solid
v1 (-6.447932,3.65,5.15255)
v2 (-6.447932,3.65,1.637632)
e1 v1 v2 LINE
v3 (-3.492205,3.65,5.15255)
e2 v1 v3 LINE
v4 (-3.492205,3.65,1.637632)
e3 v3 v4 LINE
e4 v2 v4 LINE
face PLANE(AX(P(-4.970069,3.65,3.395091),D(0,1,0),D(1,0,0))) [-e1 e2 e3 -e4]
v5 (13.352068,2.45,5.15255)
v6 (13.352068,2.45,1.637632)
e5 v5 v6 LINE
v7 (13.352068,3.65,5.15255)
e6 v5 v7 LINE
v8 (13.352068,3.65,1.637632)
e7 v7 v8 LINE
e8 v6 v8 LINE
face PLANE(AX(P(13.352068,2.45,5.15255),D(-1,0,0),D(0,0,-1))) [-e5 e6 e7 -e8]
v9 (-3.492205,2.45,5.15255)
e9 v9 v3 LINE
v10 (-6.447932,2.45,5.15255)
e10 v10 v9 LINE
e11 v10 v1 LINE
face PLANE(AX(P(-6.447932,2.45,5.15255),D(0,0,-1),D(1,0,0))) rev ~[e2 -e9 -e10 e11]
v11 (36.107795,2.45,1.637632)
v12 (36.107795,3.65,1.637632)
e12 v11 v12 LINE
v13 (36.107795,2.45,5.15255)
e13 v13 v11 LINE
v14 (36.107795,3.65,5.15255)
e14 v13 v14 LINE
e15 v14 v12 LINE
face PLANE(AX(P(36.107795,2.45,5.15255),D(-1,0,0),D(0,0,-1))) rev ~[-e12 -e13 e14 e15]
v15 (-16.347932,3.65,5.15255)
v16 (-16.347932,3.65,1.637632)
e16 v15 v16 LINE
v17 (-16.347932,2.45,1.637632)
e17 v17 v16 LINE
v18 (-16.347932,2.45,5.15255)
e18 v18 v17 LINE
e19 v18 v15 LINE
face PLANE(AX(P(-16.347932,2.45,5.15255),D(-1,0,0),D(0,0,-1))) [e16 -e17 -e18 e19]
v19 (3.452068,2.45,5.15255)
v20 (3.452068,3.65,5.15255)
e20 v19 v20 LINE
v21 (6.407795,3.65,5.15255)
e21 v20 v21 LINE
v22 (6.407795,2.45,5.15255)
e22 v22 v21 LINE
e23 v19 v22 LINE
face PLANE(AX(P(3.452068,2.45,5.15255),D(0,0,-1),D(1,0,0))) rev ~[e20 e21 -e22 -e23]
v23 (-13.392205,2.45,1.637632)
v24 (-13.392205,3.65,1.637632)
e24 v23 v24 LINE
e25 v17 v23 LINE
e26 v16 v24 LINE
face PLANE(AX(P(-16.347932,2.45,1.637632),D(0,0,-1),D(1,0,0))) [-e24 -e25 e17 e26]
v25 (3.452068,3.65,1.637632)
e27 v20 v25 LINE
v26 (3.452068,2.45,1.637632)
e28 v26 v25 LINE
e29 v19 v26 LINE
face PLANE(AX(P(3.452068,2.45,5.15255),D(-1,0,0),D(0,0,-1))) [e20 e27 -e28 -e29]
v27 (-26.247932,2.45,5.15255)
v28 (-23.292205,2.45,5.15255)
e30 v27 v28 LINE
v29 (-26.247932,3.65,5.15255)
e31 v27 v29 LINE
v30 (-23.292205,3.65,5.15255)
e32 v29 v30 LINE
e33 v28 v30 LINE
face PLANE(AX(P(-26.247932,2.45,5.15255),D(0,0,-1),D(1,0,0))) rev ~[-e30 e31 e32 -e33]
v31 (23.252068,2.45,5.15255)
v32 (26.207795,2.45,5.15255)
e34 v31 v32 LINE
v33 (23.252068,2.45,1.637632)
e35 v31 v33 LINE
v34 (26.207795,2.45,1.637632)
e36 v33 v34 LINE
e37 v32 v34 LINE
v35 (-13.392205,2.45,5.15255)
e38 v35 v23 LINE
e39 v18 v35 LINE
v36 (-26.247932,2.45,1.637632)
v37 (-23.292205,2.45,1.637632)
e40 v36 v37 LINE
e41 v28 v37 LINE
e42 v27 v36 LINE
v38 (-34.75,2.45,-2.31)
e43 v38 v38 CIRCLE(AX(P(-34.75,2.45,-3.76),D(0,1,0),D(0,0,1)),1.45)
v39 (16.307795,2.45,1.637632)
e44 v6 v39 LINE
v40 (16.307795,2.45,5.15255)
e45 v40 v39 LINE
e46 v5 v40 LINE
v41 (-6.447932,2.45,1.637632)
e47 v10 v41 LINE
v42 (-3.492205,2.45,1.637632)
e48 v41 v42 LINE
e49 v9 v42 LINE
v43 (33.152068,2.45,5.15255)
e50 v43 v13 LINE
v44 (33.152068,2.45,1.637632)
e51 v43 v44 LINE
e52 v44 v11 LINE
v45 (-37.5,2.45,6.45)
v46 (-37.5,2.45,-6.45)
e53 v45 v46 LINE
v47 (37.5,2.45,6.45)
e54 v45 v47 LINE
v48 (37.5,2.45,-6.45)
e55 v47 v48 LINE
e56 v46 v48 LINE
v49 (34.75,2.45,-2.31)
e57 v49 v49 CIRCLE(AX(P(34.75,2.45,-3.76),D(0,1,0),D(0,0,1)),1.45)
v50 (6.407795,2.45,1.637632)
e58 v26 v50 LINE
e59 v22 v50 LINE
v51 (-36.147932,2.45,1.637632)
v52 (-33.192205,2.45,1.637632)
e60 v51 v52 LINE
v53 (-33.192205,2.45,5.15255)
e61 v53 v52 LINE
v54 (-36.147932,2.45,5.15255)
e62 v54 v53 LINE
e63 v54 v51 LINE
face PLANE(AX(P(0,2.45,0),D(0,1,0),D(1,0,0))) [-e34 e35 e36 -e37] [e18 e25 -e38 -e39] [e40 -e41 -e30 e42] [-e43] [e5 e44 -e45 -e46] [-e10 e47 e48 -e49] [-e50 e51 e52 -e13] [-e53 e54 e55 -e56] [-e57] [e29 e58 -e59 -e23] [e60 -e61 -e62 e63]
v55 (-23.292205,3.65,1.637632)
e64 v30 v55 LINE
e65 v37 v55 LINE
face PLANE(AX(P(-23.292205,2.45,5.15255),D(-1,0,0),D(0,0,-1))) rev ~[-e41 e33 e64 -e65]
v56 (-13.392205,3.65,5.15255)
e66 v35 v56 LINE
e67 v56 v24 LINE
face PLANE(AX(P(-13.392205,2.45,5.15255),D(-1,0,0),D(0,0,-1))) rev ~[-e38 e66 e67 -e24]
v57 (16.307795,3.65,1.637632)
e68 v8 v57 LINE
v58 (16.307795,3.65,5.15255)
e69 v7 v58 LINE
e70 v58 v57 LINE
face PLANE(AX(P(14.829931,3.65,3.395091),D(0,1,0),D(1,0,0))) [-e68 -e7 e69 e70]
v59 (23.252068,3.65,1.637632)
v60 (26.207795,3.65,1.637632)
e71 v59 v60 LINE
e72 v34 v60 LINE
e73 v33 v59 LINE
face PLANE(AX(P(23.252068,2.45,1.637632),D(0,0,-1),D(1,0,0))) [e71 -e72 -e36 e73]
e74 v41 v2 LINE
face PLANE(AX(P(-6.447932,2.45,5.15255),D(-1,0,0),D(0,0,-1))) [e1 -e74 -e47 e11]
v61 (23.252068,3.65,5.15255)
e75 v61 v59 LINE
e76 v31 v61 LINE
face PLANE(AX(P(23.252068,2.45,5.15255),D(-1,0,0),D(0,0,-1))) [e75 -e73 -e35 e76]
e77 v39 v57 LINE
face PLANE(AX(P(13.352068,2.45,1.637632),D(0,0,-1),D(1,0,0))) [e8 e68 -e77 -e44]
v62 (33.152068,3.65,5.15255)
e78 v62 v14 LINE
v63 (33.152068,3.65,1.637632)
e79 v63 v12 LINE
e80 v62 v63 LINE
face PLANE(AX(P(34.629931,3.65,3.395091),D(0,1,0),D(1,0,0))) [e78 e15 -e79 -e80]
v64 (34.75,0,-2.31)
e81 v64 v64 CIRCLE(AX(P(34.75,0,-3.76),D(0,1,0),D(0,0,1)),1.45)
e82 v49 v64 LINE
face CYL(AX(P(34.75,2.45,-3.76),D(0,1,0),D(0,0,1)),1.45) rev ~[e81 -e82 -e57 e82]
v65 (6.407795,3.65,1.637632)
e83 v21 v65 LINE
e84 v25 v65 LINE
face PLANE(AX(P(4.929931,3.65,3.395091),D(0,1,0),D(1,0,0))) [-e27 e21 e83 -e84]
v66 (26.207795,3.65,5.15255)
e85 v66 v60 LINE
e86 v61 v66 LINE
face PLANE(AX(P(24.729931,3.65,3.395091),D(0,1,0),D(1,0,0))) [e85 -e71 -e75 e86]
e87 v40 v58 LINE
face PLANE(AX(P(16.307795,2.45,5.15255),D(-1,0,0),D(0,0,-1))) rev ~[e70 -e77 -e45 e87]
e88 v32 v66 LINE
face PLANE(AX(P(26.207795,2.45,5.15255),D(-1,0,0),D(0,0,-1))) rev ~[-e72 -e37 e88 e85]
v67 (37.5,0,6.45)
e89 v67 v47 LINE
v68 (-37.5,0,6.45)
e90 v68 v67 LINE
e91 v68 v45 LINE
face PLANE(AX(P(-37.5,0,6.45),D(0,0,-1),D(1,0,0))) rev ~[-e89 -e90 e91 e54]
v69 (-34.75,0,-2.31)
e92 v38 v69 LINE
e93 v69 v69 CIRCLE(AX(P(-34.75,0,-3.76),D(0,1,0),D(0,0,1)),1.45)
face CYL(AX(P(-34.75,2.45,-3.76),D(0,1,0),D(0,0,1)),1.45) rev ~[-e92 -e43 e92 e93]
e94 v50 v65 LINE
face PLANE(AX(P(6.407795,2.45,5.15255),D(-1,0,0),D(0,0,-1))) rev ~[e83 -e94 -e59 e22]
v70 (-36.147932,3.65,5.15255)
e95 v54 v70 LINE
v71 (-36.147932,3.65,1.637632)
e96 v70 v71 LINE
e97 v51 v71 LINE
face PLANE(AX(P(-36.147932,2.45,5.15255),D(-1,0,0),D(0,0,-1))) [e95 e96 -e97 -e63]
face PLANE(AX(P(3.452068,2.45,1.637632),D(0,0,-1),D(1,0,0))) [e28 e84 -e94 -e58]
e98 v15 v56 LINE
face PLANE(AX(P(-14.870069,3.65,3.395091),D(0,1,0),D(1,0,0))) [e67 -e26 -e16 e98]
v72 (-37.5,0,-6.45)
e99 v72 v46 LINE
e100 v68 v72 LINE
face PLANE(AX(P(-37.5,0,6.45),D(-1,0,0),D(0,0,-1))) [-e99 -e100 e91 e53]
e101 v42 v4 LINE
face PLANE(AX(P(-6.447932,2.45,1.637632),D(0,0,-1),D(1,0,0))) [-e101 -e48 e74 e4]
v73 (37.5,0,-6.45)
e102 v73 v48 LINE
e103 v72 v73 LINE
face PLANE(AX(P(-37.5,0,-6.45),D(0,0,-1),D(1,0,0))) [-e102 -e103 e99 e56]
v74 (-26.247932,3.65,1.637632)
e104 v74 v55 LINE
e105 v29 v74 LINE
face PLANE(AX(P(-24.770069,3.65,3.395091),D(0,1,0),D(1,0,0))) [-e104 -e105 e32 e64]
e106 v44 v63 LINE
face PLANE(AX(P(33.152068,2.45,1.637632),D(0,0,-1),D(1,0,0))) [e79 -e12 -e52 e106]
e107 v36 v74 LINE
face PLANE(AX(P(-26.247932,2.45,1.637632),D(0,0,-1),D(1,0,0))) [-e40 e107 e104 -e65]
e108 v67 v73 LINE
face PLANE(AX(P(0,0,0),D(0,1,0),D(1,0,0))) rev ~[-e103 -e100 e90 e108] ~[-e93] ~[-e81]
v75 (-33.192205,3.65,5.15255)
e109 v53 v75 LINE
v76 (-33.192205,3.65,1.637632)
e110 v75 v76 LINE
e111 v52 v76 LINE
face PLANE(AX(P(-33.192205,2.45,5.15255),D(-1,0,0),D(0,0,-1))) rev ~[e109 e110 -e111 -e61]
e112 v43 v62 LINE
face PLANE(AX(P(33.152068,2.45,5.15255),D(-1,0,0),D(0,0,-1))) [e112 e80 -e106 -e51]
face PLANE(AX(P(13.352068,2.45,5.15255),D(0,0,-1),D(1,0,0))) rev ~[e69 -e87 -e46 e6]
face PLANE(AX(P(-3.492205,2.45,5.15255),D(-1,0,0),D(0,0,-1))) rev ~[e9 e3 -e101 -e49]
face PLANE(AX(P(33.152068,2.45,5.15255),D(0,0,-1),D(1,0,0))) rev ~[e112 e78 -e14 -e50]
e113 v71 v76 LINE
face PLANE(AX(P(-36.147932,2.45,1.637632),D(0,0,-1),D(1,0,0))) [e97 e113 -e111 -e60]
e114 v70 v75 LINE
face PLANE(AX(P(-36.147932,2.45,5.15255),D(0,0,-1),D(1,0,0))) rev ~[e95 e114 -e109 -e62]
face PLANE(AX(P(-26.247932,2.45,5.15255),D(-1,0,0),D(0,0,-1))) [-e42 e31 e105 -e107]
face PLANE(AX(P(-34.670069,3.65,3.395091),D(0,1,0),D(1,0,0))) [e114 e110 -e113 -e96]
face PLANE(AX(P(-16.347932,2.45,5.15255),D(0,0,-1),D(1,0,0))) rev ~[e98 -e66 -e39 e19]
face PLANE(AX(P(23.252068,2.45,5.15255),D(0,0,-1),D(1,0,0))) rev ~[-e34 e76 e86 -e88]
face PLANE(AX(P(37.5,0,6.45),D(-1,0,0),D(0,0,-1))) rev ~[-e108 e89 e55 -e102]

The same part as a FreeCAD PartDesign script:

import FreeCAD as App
import Part
import Sketcher
from FreeCAD import Vector

doc = App.newDocument("Part")
body = doc.addObject("PartDesign::Body", "Body")

sketch1 = body.newObject("Sketcher::SketchObject", "Sketch")
sketch1.AttachmentSupport = (doc.getObject("XZ_Plane"), [""])
sketch1.MapMode = "FlatFace"
sketch1.addGeometry(Part.LineSegment(Vector(-38, -6, 0), Vector(-38, 6, 0)), False)
sketch1.addGeometry(Part.LineSegment(Vector(-38, 6, 0), Vector(38, 6, 0)), False)
sketch1.addGeometry(Part.LineSegment(Vector(38, 6, 0), Vector(38, -6, 0)), False)
sketch1.addGeometry(Part.LineSegment(Vector(38, -6, 0), Vector(-38, -6, 0)), False)
sketch1.addConstraint(Sketcher.Constraint("Coincident", 0, 2, 1, 1))
sketch1.addConstraint(Sketcher.Constraint("Coincident", 1, 2, 2, 1))
sketch1.addConstraint(Sketcher.Constraint("Coincident", 2, 2, 3, 1))
sketch1.addConstraint(Sketcher.Constraint("Coincident", 3, 2, 0, 1))
sketch1.addConstraint(Sketcher.Constraint("Vertical", 0))
sketch1.addConstraint(Sketcher.Constraint("Horizontal", 1))
sketch1.addConstraint(Sketcher.Constraint("Vertical", 2))
sketch1.addConstraint(Sketcher.Constraint("Horizontal", 3))
sketch1.addConstraint(Sketcher.Constraint("Symmetric", 0, 2, 2, 2, -1, 1))
sketch1.addConstraint(Sketcher.Constraint("DistanceX", 1, 1, 1, 2, 75.0))
sketch1.addConstraint(Sketcher.Constraint("DistanceY", 0, 1, 0, 2, 12.9))
pad1 = body.newObject("PartDesign::Pad", "Pad")
pad1.Profile = sketch1
pad1.Length = 2.45
pad1.Reversed = True

sketch2 = body.newObject("Sketcher::SketchObject", "Sketch001")
sketch2.AttachmentSupport = (doc.getObject("XZ_Plane"), [""])
sketch2.MapMode = "FlatFace"
sketch2.AttachmentOffset = App.Placement(Vector(0, 0, -2.45), App.Rotation())
sketch2.addGeometry(Part.Circle(Vector(34.8, -3.8, 0), Vector(0, 0, 1), 1.4), False)
sketch2.addGeometry(Part.Circle(Vector(-34.8, -3.8, 0), Vector(0, 0, 1), 1.4), False)
sketch2.addConstraint(Sketcher.Constraint("Equal", 0, 1))
sketch2.addConstraint(Sketcher.Constraint("Symmetric", 0, 3, 1, 3, -2))
sketch2.addConstraint(Sketcher.Constraint("Diameter", 0, 2.9))
sketch2.addConstraint(Sketcher.Constraint("DistanceX", 1, 3, 0, 3, 69.5))
sketch2.addConstraint(Sketcher.Constraint("DistanceY", 0, 3, -1, 1, 3.76))
pocket1 = body.newObject("PartDesign::Pocket", "Pocket")
pocket1.Profile = sketch2
pocket1.Length = 2.45
pocket1.Reversed = True

sketch3 = body.newObject("Sketcher::SketchObject", "Sketch002")
sketch3.AttachmentSupport = (doc.getObject("XZ_Plane"), [""])
sketch3.MapMode = "FlatFace"
sketch3.AttachmentOffset = App.Placement(Vector(0, 0, -2.45), App.Rotation())
sketch3.addGeometry(Part.LineSegment(Vector(23.3, 1.6, 0), Vector(23.3, 5.2, 0)), False)
sketch3.addGeometry(Part.LineSegment(Vector(23.3, 5.2, 0), Vector(26.2, 5.2, 0)), False)
sketch3.addGeometry(Part.LineSegment(Vector(26.2, 5.2, 0), Vector(26.2, 1.6, 0)), False)
sketch3.addGeometry(Part.LineSegment(Vector(26.2, 1.6, 0), Vector(23.3, 1.6, 0)), False)
sketch3.addGeometry(Part.LineSegment(Vector(33.2, 1.6, 0), Vector(33.2, 5.2, 0)), False)
sketch3.addGeometry(Part.LineSegment(Vector(33.2, 5.2, 0), Vector(36.1, 5.2, 0)), False)
sketch3.addGeometry(Part.LineSegment(Vector(36.1, 5.2, 0), Vector(36.1, 1.6, 0)), False)
sketch3.addGeometry(Part.LineSegment(Vector(36.1, 1.6, 0), Vector(33.2, 1.6, 0)), False)
sketch3.addGeometry(Part.LineSegment(Vector(13.4, 1.6, 0), Vector(13.4, 5.2, 0)), False)
sketch3.addGeometry(Part.LineSegment(Vector(13.4, 5.2, 0), Vector(16.3, 5.2, 0)), False)
sketch3.addGeometry(Part.LineSegment(Vector(16.3, 5.2, 0), Vector(16.3, 1.6, 0)), False)
sketch3.addGeometry(Part.LineSegment(Vector(16.3, 1.6, 0), Vector(13.4, 1.6, 0)), False)
sketch3.addGeometry(Part.LineSegment(Vector(3.5, 1.6, 0), Vector(3.5, 5.2, 0)), False)
sketch3.addGeometry(Part.LineSegment(Vector(3.5, 5.2, 0), Vector(6.4, 5.2, 0)), False)
sketch3.addGeometry(Part.LineSegment(Vector(6.4, 5.2, 0), Vector(6.4, 1.6, 0)), False)
sketch3.addGeometry(Part.LineSegment(Vector(6.4, 1.6, 0), Vector(3.5, 1.6, 0)), False)
sketch3.addGeometry(Part.LineSegment(Vector(-6.4, 1.6, 0), Vector(-6.4, 5.2, 0)), False)
sketch3.addGeometry(Part.LineSegment(Vector(-6.4, 5.2, 0), Vector(-3.5, 5.2, 0)), False)
sketch3.addGeometry(Part.LineSegment(Vector(-3.5, 5.2, 0), Vector(-3.5, 1.6, 0)), False)
sketch3.addGeometry(Part.LineSegment(Vector(-3.5, 1.6, 0), Vector(-6.4, 1.6, 0)), False)
sketch3.addGeometry(Part.LineSegment(Vector(-16.3, 1.6, 0), Vector(-16.3, 5.2, 0)), False)
sketch3.addGeometry(Part.LineSegment(Vector(-16.3, 5.2, 0), Vector(-13.4, 5.2, 0)), False)
sketch3.addGeometry(Part.LineSegment(Vector(-13.4, 5.2, 0), Vector(-13.4, 1.6, 0)), False)
sketch3.addGeometry(Part.LineSegment(Vector(-13.4, 1.6, 0), Vector(-16.3, 1.6, 0)), False)
sketch3.addGeometry(Part.LineSegment(Vector(-26.2, 1.6, 0), Vector(-26.2, 5.2, 0)), False)
sketch3.addGeometry(Part.LineSegment(Vector(-26.2, 5.2, 0), Vector(-23.3, 5.2, 0)), False)
sketch3.addGeometry(Part.LineSegment(Vector(-23.3, 5.2, 0), Vector(-23.3, 1.6, 0)), False)
sketch3.addGeometry(Part.LineSegment(Vector(-23.3, 1.6, 0), Vector(-26.2, 1.6, 0)), False)
sketch3.addGeometry(Part.LineSegment(Vector(-36.1, 1.6, 0), Vector(-36.1, 5.2, 0)), False)
sketch3.addGeometry(Part.LineSegment(Vector(-36.1, 5.2, 0), Vector(-33.2, 5.2, 0)), False)
sketch3.addGeometry(Part.LineSegment(Vector(-33.2, 5.2, 0), Vector(-33.2, 1.6, 0)), False)
sketch3.addGeometry(Part.LineSegment(Vector(-33.2, 1.6, 0), Vector(-36.1, 1.6, 0)), False)
sketch3.addConstraint(Sketcher.Constraint("Coincident", 0, 2, 1, 1))
sketch3.addConstraint(Sketcher.Constraint("Coincident", 1, 2, 2, 1))
sketch3.addConstraint(Sketcher.Constraint("Coincident", 2, 2, 3, 1))
sketch3.addConstraint(Sketcher.Constraint("Coincident", 3, 2, 0, 1))
sketch3.addConstraint(Sketcher.Constraint("Coincident", 4, 2, 5, 1))
sketch3.addConstraint(Sketcher.Constraint("Coincident", 5, 2, 6, 1))
sketch3.addConstraint(Sketcher.Constraint("Coincident", 6, 2, 7, 1))
sketch3.addConstraint(Sketcher.Constraint("Coincident", 7, 2, 4, 1))
sketch3.addConstraint(Sketcher.Constraint("Coincident", 8, 2, 9, 1))
sketch3.addConstraint(Sketcher.Constraint("Coincident", 9, 2, 10, 1))
sketch3.addConstraint(Sketcher.Constraint("Coincident", 10, 2, 11, 1))
sketch3.addConstraint(Sketcher.Constraint("Coincident", 11, 2, 8, 1))
sketch3.addConstraint(Sketcher.Constraint("Coincident", 12, 2, 13, 1))
sketch3.addConstraint(Sketcher.Constraint("Coincident", 13, 2, 14, 1))
sketch3.addConstraint(Sketcher.Constraint("Coincident", 14, 2, 15, 1))
sketch3.addConstraint(Sketcher.Constraint("Coincident", 15, 2, 12, 1))
sketch3.addConstraint(Sketcher.Constraint("Coincident", 16, 2, 17, 1))
sketch3.addConstraint(Sketcher.Constraint("Coincident", 17, 2, 18, 1))
sketch3.addConstraint(Sketcher.Constraint("Coincident", 18, 2, 19, 1))
sketch3.addConstraint(Sketcher.Constraint("Coincident", 19, 2, 16, 1))
sketch3.addConstraint(Sketcher.Constraint("Coincident", 20, 2, 21, 1))
sketch3.addConstraint(Sketcher.Constraint("Coincident", 21, 2, 22, 1))
sketch3.addConstraint(Sketcher.Constraint("Coincident", 22, 2, 23, 1))
sketch3.addConstraint(Sketcher.Constraint("Coincident", 23, 2, 20, 1))
sketch3.addConstraint(Sketcher.Constraint("Coincident", 24, 2, 25, 1))
sketch3.addConstraint(Sketcher.Constraint("Coincident", 25, 2, 26, 1))
sketch3.addConstraint(Sketcher.Constraint("Coincident", 26, 2, 27, 1))
sketch3.addConstraint(Sketcher.Constraint("Coincident", 27, 2, 24, 1))
sketch3.addConstraint(Sketcher.Constraint("Coincident", 28, 2, 29, 1))
sketch3.addConstraint(Sketcher.Constraint("Coincident", 29, 2, 30, 1))
sketch3.addConstraint(Sketcher.Constraint("Coincident", 30, 2, 31, 1))
sketch3.addConstraint(Sketcher.Constraint("Coincident", 31, 2, 28, 1))
sketch3.addConstraint(Sketcher.Constraint("Vertical", 0))
sketch3.addConstraint(Sketcher.Constraint("Horizontal", 1))
sketch3.addConstraint(Sketcher.Constraint("Vertical", 2))
sketch3.addConstraint(Sketcher.Constraint("Horizontal", 3))
sketch3.addConstraint(Sketcher.Constraint("Vertical", 4))
sketch3.addConstraint(Sketcher.Constraint("Horizontal", 5))
sketch3.addConstraint(Sketcher.Constraint("Vertical", 6))
sketch3.addConstraint(Sketcher.Constraint("Horizontal", 7))
sketch3.addConstraint(Sketcher.Constraint("Vertical", 8))
sketch3.addConstraint(Sketcher.Constraint("Horizontal", 9))
sketch3.addConstraint(Sketcher.Constraint("Vertical", 10))
sketch3.addConstraint(Sketcher.Constraint("Horizontal", 11))
sketch3.addConstraint(Sketcher.Constraint("Vertical", 12))
sketch3.addConstraint(Sketcher.Constraint("Horizontal", 13))
sketch3.addConstraint(Sketcher.Constraint("Vertical", 14))
sketch3.addConstraint(Sketcher.Constraint("Horizontal", 15))
sketch3.addConstraint(Sketcher.Constraint("Vertical", 16))
sketch3.addConstraint(Sketcher.Constraint("Horizontal", 17))
sketch3.addConstraint(Sketcher.Constraint("Vertical", 18))
sketch3.addConstraint(Sketcher.Constraint("Horizontal", 19))
sketch3.addConstraint(Sketcher.Constraint("Vertical", 20))
sketch3.addConstraint(Sketcher.Constraint("Horizontal", 21))
sketch3.addConstraint(Sketcher.Constraint("Vertical", 22))
sketch3.addConstraint(Sketcher.Constraint("Horizontal", 23))
sketch3.addConstraint(Sketcher.Constraint("Vertical", 24))
sketch3.addConstraint(Sketcher.Constraint("Horizontal", 25))
sketch3.addConstraint(Sketcher.Constraint("Vertical", 26))
sketch3.addConstraint(Sketcher.Constraint("Horizontal", 27))
sketch3.addConstraint(Sketcher.Constraint("Vertical", 28))
sketch3.addConstraint(Sketcher.Constraint("Horizontal", 29))
sketch3.addConstraint(Sketcher.Constraint("Vertical", 30))
sketch3.addConstraint(Sketcher.Constraint("Horizontal", 31))
sketch3.addConstraint(Sketcher.Constraint("Horizontal", 1, 2, 4, 2))
sketch3.addConstraint(Sketcher.Constraint("Horizontal", 3, 2, 6, 2))
sketch3.addConstraint(Sketcher.Constraint("Horizontal", 5, 2, 8, 2))
sketch3.addConstraint(Sketcher.Constraint("Horizontal", 7, 2, 10, 2))
sketch3.addConstraint(Sketcher.Constraint("Horizontal", 9, 2, 12, 2))
sketch3.addConstraint(Sketcher.Constraint("Horizontal", 11, 2, 14, 2))
sketch3.addConstraint(Sketcher.Constraint("Horizontal", 13, 2, 16, 2))
sketch3.addConstraint(Sketcher.Constraint("Horizontal", 15, 2, 18, 2))
sketch3.addConstraint(Sketcher.Constraint("Horizontal", 17, 2, 20, 2))
sketch3.addConstraint(Sketcher.Constraint("Horizontal", 19, 2, 22, 2))
sketch3.addConstraint(Sketcher.Constraint("Horizontal", 21, 2, 24, 2))
sketch3.addConstraint(Sketcher.Constraint("Horizontal", 23, 2, 26, 2))
sketch3.addConstraint(Sketcher.Constraint("Horizontal", 25, 2, 28, 2))
sketch3.addConstraint(Sketcher.Constraint("Horizontal", 27, 2, 30, 2))
sketch3.addConstraint(Sketcher.Constraint("Equal", 3, 5))
sketch3.addConstraint(Sketcher.Constraint("Equal", 7, 9))
sketch3.addConstraint(Sketcher.Constraint("Equal", 11, 13))
sketch3.addConstraint(Sketcher.Constraint("Equal", 15, 17))
sketch3.addConstraint(Sketcher.Constraint("Equal", 19, 21))
sketch3.addConstraint(Sketcher.Constraint("Equal", 23, 25))
sketch3.addConstraint(Sketcher.Constraint("Equal", 27, 29))
sketch3.addConstraint(Sketcher.Constraint("DistanceX", 0, 2, 4, 2, 9.9))
sketch3.addConstraint(Sketcher.Constraint("DistanceX", 8, 2, 0, 2, 9.9))
sketch3.addConstraint(Sketcher.Constraint("DistanceX", 12, 2, 8, 2, 9.9))
sketch3.addConstraint(Sketcher.Constraint("DistanceX", 16, 2, 12, 2, 9.9))
sketch3.addConstraint(Sketcher.Constraint("DistanceX", 20, 2, 16, 2, 9.9))
sketch3.addConstraint(Sketcher.Constraint("DistanceX", 24, 2, 20, 2, 9.9))
sketch3.addConstraint(Sketcher.Constraint("DistanceX", 28, 2, 24, 2, 9.9))
sketch3.addConstraint(Sketcher.Constraint("DistanceY", 0, 1, 0, 2, 3.514918))
sketch3.addConstraint(Sketcher.Constraint("DistanceX", 1, 1, 1, 2, 2.955727))
sketch3.addConstraint(Sketcher.Constraint("DistanceY", -1, 1, 0, 2, 5.15255))
sketch3.addConstraint(Sketcher.Constraint("DistanceX", -1, 1, 0, 2, 23.252068))
pad2 = body.newObject("PartDesign::Pad", "Pad001")
pad2.Profile = sketch3
pad2.Length = 1.2
pad2.Reversed = True

doc.recompute()
